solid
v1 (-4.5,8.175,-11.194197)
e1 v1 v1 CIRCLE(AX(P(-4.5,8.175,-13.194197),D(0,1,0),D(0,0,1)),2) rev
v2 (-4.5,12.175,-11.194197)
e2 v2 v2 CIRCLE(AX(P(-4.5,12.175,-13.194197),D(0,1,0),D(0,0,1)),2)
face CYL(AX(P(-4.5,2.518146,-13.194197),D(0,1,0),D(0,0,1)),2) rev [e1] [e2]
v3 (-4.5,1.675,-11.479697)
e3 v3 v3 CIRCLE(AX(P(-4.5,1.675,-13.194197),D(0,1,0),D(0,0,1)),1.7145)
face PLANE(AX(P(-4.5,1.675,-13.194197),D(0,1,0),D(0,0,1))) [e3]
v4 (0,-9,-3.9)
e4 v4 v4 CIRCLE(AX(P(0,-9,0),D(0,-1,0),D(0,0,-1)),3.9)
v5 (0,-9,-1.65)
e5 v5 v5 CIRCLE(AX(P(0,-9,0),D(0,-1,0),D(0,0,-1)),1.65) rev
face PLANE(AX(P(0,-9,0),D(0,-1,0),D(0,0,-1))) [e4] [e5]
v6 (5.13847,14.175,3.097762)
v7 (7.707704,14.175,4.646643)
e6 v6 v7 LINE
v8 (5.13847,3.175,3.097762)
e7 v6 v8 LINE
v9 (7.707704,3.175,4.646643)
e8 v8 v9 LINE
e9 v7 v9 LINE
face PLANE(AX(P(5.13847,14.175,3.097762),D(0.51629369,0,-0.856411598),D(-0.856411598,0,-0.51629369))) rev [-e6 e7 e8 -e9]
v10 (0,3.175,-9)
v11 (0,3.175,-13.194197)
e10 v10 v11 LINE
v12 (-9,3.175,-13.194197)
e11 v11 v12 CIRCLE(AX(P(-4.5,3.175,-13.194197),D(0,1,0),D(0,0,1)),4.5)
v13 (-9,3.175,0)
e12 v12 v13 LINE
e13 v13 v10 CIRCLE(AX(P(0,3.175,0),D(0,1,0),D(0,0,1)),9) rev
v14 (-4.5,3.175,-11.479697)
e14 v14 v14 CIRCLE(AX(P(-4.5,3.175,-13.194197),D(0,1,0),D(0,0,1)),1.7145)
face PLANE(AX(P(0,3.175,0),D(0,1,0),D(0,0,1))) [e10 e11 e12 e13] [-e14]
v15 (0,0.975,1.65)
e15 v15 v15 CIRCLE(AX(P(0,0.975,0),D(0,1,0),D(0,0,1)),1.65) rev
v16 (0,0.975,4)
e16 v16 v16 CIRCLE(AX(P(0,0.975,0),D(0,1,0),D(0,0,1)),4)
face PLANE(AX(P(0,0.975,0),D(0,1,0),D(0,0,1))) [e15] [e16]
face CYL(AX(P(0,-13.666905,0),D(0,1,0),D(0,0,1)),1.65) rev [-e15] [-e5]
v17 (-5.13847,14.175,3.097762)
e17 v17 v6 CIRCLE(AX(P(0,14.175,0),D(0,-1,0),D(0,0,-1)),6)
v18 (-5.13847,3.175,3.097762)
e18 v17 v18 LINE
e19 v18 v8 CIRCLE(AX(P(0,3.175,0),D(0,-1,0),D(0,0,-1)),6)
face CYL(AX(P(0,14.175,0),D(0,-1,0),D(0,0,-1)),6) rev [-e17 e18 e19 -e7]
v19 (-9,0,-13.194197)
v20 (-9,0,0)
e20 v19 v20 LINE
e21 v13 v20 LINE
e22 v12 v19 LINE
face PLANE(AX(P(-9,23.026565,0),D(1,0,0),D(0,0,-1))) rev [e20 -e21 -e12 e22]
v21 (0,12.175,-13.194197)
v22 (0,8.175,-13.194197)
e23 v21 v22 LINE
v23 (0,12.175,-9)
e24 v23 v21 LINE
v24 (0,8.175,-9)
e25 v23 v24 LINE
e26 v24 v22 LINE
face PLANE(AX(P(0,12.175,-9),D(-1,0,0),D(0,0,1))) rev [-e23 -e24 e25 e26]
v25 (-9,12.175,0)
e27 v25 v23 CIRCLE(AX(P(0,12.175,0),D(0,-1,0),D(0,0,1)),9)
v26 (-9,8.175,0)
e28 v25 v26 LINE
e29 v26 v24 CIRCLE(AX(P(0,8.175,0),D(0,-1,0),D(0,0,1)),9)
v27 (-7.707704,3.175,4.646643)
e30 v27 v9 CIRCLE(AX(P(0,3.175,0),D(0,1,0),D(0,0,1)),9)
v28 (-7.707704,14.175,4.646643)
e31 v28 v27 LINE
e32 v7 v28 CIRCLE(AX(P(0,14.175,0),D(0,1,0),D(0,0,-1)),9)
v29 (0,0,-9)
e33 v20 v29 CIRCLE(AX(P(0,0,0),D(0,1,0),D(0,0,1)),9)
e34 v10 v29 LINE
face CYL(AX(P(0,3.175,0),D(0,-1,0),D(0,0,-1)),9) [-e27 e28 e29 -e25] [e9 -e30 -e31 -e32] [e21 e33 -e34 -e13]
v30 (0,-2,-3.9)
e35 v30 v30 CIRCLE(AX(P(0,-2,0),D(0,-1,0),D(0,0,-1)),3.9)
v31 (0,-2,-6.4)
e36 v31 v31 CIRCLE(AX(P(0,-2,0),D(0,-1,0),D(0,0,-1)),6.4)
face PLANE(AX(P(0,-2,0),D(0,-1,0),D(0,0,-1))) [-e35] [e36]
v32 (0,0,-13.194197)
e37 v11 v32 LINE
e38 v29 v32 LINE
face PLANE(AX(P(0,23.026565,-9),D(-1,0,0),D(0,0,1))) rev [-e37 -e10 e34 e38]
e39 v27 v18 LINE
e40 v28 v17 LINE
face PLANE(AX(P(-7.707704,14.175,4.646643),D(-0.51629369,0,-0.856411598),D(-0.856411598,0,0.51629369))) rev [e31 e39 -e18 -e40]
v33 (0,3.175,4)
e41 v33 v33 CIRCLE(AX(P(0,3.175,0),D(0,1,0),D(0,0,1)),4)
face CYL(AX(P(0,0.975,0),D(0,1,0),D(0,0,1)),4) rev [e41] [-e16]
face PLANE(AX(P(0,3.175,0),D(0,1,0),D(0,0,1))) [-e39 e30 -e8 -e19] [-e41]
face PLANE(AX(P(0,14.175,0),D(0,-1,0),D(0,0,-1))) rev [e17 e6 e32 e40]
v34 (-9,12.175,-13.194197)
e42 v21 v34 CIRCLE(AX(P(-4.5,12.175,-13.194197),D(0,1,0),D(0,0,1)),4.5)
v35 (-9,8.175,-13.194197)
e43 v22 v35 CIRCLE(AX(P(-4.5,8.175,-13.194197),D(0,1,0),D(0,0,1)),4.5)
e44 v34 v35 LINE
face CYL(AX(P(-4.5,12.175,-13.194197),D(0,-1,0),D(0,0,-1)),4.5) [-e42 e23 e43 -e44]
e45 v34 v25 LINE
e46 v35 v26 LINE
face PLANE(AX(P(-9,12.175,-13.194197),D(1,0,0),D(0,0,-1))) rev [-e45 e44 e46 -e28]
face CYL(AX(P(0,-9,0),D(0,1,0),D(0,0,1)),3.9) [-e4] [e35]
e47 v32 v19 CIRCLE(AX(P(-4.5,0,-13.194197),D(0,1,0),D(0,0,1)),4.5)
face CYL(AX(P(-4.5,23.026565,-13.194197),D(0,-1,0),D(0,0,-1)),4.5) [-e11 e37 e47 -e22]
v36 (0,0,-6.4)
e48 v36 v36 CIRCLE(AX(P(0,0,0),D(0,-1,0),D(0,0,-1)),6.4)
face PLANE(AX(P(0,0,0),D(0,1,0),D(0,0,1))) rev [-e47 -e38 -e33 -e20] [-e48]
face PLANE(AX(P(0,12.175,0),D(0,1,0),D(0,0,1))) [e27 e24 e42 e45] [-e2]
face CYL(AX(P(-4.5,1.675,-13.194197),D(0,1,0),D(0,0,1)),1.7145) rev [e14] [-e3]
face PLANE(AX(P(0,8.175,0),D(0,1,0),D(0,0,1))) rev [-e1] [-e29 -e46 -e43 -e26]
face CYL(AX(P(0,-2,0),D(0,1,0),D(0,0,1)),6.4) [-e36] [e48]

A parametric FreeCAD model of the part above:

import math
import FreeCAD as App
import Part
import Sketcher
from FreeCAD import Vector
Q = App.Units.Quantity

doc = App.newDocument("Part")
body = doc.addObject("PartDesign::Body", "Body")

# Sketch on XZ plane
sketch1 = body.newObject("Sketcher::SketchObject", "Sketch")
sketch1.AttachmentSupport = (doc.getObject("XZ_Plane"), [""])
sketch1.MapMode = "FlatFace"
sketch1.addGeometry(Part.Circle(Vector(0, 0, 0), Vector(0, 0, 1), 9), False)
sketch1.addConstraint([
    Sketcher.Constraint("Coincident", 0, 3, -1, 1),
    Sketcher.Constraint("Diameter", 0, Q("18 mm")),
])
pad1 = body.newObject("PartDesign::Pad", "Pad")
pad1.Profile = sketch1
pad1.Length = 3.175
pad1.Reversed = True

# Sketch on XZ plane
sketch2 = body.newObject("Sketcher::SketchObject", "Sketch001")
sketch2.AttachmentSupport = (doc.getObject("XZ_Plane"), [""])
sketch2.MapMode = "FlatFace"
sketch2.AttachmentOffset = App.Placement(Vector(0, 0, -3.175), App.Rotation())
sketch2.addGeometry([
    Part.LineSegment(Vector(-7.7, 4.6, 0), Vector(-5.1, 3.1, 0)),
    Part.ArcOfCircle(Part.Circle(Vector(0, 0, 0), Vector(0, 0, 1), 6), math.radians(149), math.radians(391)),
    Part.LineSegment(Vector(5.1, 3.1, 0), Vector(7.7, 4.6, 0)),
    Part.ArcOfCircle(Part.Circle(Vector(0, 0, 0), Vector(0, 0, 1), 9), math.radians(149), math.radians(391)),
], False)
sketch2.addConstraint([
    Sketcher.Constraint("Coincident", 0, 2, 1, 1),
    Sketcher.Constraint("Coincident", 1, 2, 2, 1),
    Sketcher.Constraint("Coincident", 2, 2, 3, 2),
    Sketcher.Constraint("Coincident", 3, 1, 0, 1),
    Sketcher.Constraint("Coincident", 1, 3, -1, 1),
    Sketcher.Constraint("Coincident", 3, 3, -1, 1),
    Sketcher.Constraint("Horizontal", 0, 2, 1, 2),
    Sketcher.Constraint("Horizontal", 2, 2, 3, 1),
    Sketcher.Constraint("Radius", 1, Q("6 mm")),
    Sketcher.Constraint("Radius", 3, Q("9 mm")),
    Sketcher.Constraint("DistanceX", 0, 2, -1, 1, Q("5.13847 mm")),
    Sketcher.Constraint("DistanceY", 1, 2, 2, 2, Q("1.548881 mm")),
])
pad2 = body.newObject("PartDesign::Pad", "Pad001")
pad2.Profile = sketch2
pad2.Length = 11
pad2.Reversed = True

# Sketch on XZ plane
sketch3 = body.newObject("Sketcher::SketchObject", "Sketch002")
sketch3.AttachmentSupport = (doc.getObject("XZ_Plane"), [""])
sketch3.MapMode = "FlatFace"
sketch3.addGeometry(Part.Circle(Vector(0, 0, 0), Vector(0, 0, 1), 6), False)
sketch3.addConstraint([
    Sketcher.Constraint("Coincident", 0, 3, -1, 1),
    Sketcher.Constraint("Diameter", 0, Q("12.8 mm")),
])
pad3 = body.newObject("PartDesign::Pad", "Pad002")
pad3.Profile = sketch3
pad3.Length = 2

# Sketch on XZ plane
sketch4 = body.newObject("Sketcher::SketchObject", "Sketch003")
sketch4.AttachmentSupport = (doc.getObject("XZ_Plane"), [""])
sketch4.MapMode = "FlatFace"
sketch4.AttachmentOffset = App.Placement(Vector(0, 0, 2), App.Rotation())
sketch4.addGeometry(Part.Circle(Vector(0, 0, 0), Vector(0, 0, 1), 3.9), False)
sketch4.addConstraint([
    Sketcher.Constraint("Coincident", 0, 3, -1, 1),
    Sketcher.Constraint("Diameter", 0, Q("7.8 mm")),
])
pad4 = body.newObject("PartDesign::Pad", "Pad003")
pad4.Profile = sketch4
pad4.Length = 7

# Sketch on XZ plane
sketch5 = body.newObject("Sketcher::SketchObject", "Sketch004")
sketch5.AttachmentSupport = (doc.getObject("XZ_Plane"), [""])
sketch5.MapMode = "FlatFace"
sketch5.addGeometry([
    Part.LineSegment(Vector(-9, -13.2, 0), Vector(-9, 0, 0)),
    Part.ArcOfCircle(Part.Circle(Vector(0, 0, 0), Vector(0, 0, 1), 9), math.radians(180), math.radians(270)),
    Part.LineSegment(Vector(0, -9, 0), Vector(0, -13.2, 0)),
    Part.ArcOfCircle(Part.Circle(Vector(-4.5, -13.2, 0), Vector(0, 0, 1), 4.5), math.radians(180), math.radians(360)),
], False)
sketch5.addConstraint([
    Sketcher.Constraint("Tangent", 0, 2, 1, 1),
    Sketcher.Constraint("Coincident", 1, 2, 2, 1),
    Sketcher.Constraint("Tangent", 2, 2, 3, 2),
    Sketcher.Constraint("Tangent", 3, 1, 0, 1),
    Sketcher.Constraint("Vertical", 0),
    Sketcher.Constraint("Vertical", 2),
    Sketcher.Constraint("Coincident", 1, 3, -1, 1),
    Sketcher.Constraint("PointOnObject", 1, 2, -2),
    Sketcher.Constraint("Radius", 1, Q("9 mm")),
    Sketcher.Constraint("DistanceY", 0, 1, 0, 2, Q("13.194197 mm")),
])
pad5 = body.newObject("PartDesign::Pad", "Pad004")
pad5.Profile = sketch5
pad5.Length = 3.175
pad5.Reversed = True

# Sketch on XZ plane
sketch6 = body.newObject("Sketcher::SketchObject", "Sketch005")
sketch6.AttachmentSupport = (doc.getObject("XZ_Plane"), [""])
sketch6.MapMode = "FlatFace"
sketch6.AttachmentOffset = App.Placement(Vector(0, 0, -8.175), App.Rotation())
sketch6.addGeometry([
    Part.LineSegment(Vector(0, -9, 0), Vector(0, -13.2, 0)),
    Part.ArcOfCircle(Part.Circle(Vector(-4.5, -13.2, 0), Vector(0, 0, 1), 4.5), math.radians(180), math.radians(360)),
    Part.LineSegment(Vector(-9, -13.2, 0), Vector(-9, 0, 0)),
    Part.ArcOfCircle(Part.Circle(Vector(0, 0, 0), Vector(0, 0, 1), 9), math.radians(180), math.radians(270)),
], False)
sketch6.addConstraint([
    Sketcher.Constraint("Tangent", 0, 2, 1, 2),
    Sketcher.Constraint("Tangent", 1, 1, 2, 1),
    Sketcher.Constraint("Tangent", 2, 2, 3, 1),
    Sketcher.Constraint("Coincident", 3, 2, 0, 1),
    Sketcher.Constraint("Vertical", 0),
    Sketcher.Constraint("Vertical", 2),
    Sketcher.Constraint("Coincident", 3, 3, -1, 1),
    Sketcher.Constraint("PointOnObject", 0, 2, -2),
    Sketcher.Constraint("Radius", 3, Q("9 mm")),
    Sketcher.Constraint("DistanceY", 0, 2, 0, 1, Q("4.194197 mm")),
])
pad6 = body.newObject("PartDesign::Pad", "Pad005")
pad6.Profile = sketch6
pad6.Length = 4
pad6.Reversed = True

# Sketch on XZ plane
sketch7 = body.newObject("Sketcher::SketchObject", "Sketch006")
sketch7.AttachmentSupport = (doc.getObject("XZ_Plane"), [""])
sketch7.MapMode = "FlatFace"
sketch7.AttachmentOffset = App.Placement(Vector(0, 0, -12.175), App.Rotation())
sketch7.addGeometry(Part.Circle(Vector(-4.5, -13.2, 0), Vector(0, 0, 1), 2), False)
sketch7.addConstraint([
    Sketcher.Constraint("Diameter", 0, Q("4 mm")),
    Sketcher.Constraint("DistanceX", 0, 3, -1, 1, Q("4.5 mm")),
    Sketcher.Constraint("DistanceY", 0, 3, -1, 1, Q("13.194197 mm")),
])
pocket1 = body.newObject("PartDesign::Pocket", "Pocket")
pocket1.Profile = sketch7
pocket1.Length = 4
pocket1.Reversed = True

# Sketch on XZ plane
sketch8 = body.newObject("Sketcher::SketchObject", "Sketch007")
sketch8.AttachmentSupport = (doc.getObject("XZ_Plane"), [""])
sketch8.MapMode = "FlatFace"
sketch8.AttachmentOffset = App.Placement(Vector(0, 0, -3.175), App.Rotation())
sketch8.addGeometry(Part.Circle(Vector(0, 0, 0), Vector(0, 0, 1), 1.7), False)
sketch8.addConstraint([
    Sketcher.Constraint("Coincident", 0, 3, -1, 1),
    Sketcher.Constraint("Diameter", 0, Q("3.3 mm")),
])
pocket2 = body.newObject("PartDesign::Pocket", "Pocket001")
pocket2.Profile = sketch8
pocket2.Length = 12.175
pocket2.Reversed = True

# Sketch on XZ plane
sketch9 = body.newObject("Sketcher::SketchObject", "Sketch008")
sketch9.AttachmentSupport = (doc.getObject("XZ_Plane"), [""])
sketch9.MapMode = "FlatFace"
sketch9.AttachmentOffset = App.Placement(Vector(0, 0, -3.175), App.Rotation())
sketch9.addGeometry(Part.Circle(Vector(0, 0, 0), Vector(0, 0, 1), 4), False)
sketch9.addConstraint([
    Sketcher.Constraint("Coincident", 0, 3, -1, 1),
    Sketcher.Constraint("Diameter", 0, Q("8 mm")),
])
pocket3 = body.newObject("PartDesign::Pocket", "Pocket002")
pocket3.Profile = sketch9
pocket3.Length = 2.2
pocket3.Reversed = True

# Sketch on XZ plane
sketch10 = body.newObject("Sketcher::SketchObject", "Sketch009")
sketch10.AttachmentSupport = (doc.getObject("XZ_Plane"), [""])
sketch10.MapMode = "FlatFace"
sketch10.AttachmentOffset = App.Placement(Vector(0, 0, -3.175), App.Rotation())
sketch10.addGeometry(Part.Circle(Vector(-4.5, -13.2, 0), Vector(0, 0, 1), 1.7), False)
sketch10.addConstraint([
    Sketcher.Constraint("Diameter", 0, Q("3.429 mm")),
    Sketcher.Constraint("DistanceX", 0, 3, -1, 1, Q("4.5 mm")),
    Sketcher.Constraint("DistanceY", 0, 3, -1, 1, Q("13.194197 mm")),
])
pocket4 = body.newObject("PartDesign::Pocket", "Pocket003")
pocket4.Profile = sketch10
pocket4.Length = 1.5
pocket4.Reversed = True

doc.recompute()
